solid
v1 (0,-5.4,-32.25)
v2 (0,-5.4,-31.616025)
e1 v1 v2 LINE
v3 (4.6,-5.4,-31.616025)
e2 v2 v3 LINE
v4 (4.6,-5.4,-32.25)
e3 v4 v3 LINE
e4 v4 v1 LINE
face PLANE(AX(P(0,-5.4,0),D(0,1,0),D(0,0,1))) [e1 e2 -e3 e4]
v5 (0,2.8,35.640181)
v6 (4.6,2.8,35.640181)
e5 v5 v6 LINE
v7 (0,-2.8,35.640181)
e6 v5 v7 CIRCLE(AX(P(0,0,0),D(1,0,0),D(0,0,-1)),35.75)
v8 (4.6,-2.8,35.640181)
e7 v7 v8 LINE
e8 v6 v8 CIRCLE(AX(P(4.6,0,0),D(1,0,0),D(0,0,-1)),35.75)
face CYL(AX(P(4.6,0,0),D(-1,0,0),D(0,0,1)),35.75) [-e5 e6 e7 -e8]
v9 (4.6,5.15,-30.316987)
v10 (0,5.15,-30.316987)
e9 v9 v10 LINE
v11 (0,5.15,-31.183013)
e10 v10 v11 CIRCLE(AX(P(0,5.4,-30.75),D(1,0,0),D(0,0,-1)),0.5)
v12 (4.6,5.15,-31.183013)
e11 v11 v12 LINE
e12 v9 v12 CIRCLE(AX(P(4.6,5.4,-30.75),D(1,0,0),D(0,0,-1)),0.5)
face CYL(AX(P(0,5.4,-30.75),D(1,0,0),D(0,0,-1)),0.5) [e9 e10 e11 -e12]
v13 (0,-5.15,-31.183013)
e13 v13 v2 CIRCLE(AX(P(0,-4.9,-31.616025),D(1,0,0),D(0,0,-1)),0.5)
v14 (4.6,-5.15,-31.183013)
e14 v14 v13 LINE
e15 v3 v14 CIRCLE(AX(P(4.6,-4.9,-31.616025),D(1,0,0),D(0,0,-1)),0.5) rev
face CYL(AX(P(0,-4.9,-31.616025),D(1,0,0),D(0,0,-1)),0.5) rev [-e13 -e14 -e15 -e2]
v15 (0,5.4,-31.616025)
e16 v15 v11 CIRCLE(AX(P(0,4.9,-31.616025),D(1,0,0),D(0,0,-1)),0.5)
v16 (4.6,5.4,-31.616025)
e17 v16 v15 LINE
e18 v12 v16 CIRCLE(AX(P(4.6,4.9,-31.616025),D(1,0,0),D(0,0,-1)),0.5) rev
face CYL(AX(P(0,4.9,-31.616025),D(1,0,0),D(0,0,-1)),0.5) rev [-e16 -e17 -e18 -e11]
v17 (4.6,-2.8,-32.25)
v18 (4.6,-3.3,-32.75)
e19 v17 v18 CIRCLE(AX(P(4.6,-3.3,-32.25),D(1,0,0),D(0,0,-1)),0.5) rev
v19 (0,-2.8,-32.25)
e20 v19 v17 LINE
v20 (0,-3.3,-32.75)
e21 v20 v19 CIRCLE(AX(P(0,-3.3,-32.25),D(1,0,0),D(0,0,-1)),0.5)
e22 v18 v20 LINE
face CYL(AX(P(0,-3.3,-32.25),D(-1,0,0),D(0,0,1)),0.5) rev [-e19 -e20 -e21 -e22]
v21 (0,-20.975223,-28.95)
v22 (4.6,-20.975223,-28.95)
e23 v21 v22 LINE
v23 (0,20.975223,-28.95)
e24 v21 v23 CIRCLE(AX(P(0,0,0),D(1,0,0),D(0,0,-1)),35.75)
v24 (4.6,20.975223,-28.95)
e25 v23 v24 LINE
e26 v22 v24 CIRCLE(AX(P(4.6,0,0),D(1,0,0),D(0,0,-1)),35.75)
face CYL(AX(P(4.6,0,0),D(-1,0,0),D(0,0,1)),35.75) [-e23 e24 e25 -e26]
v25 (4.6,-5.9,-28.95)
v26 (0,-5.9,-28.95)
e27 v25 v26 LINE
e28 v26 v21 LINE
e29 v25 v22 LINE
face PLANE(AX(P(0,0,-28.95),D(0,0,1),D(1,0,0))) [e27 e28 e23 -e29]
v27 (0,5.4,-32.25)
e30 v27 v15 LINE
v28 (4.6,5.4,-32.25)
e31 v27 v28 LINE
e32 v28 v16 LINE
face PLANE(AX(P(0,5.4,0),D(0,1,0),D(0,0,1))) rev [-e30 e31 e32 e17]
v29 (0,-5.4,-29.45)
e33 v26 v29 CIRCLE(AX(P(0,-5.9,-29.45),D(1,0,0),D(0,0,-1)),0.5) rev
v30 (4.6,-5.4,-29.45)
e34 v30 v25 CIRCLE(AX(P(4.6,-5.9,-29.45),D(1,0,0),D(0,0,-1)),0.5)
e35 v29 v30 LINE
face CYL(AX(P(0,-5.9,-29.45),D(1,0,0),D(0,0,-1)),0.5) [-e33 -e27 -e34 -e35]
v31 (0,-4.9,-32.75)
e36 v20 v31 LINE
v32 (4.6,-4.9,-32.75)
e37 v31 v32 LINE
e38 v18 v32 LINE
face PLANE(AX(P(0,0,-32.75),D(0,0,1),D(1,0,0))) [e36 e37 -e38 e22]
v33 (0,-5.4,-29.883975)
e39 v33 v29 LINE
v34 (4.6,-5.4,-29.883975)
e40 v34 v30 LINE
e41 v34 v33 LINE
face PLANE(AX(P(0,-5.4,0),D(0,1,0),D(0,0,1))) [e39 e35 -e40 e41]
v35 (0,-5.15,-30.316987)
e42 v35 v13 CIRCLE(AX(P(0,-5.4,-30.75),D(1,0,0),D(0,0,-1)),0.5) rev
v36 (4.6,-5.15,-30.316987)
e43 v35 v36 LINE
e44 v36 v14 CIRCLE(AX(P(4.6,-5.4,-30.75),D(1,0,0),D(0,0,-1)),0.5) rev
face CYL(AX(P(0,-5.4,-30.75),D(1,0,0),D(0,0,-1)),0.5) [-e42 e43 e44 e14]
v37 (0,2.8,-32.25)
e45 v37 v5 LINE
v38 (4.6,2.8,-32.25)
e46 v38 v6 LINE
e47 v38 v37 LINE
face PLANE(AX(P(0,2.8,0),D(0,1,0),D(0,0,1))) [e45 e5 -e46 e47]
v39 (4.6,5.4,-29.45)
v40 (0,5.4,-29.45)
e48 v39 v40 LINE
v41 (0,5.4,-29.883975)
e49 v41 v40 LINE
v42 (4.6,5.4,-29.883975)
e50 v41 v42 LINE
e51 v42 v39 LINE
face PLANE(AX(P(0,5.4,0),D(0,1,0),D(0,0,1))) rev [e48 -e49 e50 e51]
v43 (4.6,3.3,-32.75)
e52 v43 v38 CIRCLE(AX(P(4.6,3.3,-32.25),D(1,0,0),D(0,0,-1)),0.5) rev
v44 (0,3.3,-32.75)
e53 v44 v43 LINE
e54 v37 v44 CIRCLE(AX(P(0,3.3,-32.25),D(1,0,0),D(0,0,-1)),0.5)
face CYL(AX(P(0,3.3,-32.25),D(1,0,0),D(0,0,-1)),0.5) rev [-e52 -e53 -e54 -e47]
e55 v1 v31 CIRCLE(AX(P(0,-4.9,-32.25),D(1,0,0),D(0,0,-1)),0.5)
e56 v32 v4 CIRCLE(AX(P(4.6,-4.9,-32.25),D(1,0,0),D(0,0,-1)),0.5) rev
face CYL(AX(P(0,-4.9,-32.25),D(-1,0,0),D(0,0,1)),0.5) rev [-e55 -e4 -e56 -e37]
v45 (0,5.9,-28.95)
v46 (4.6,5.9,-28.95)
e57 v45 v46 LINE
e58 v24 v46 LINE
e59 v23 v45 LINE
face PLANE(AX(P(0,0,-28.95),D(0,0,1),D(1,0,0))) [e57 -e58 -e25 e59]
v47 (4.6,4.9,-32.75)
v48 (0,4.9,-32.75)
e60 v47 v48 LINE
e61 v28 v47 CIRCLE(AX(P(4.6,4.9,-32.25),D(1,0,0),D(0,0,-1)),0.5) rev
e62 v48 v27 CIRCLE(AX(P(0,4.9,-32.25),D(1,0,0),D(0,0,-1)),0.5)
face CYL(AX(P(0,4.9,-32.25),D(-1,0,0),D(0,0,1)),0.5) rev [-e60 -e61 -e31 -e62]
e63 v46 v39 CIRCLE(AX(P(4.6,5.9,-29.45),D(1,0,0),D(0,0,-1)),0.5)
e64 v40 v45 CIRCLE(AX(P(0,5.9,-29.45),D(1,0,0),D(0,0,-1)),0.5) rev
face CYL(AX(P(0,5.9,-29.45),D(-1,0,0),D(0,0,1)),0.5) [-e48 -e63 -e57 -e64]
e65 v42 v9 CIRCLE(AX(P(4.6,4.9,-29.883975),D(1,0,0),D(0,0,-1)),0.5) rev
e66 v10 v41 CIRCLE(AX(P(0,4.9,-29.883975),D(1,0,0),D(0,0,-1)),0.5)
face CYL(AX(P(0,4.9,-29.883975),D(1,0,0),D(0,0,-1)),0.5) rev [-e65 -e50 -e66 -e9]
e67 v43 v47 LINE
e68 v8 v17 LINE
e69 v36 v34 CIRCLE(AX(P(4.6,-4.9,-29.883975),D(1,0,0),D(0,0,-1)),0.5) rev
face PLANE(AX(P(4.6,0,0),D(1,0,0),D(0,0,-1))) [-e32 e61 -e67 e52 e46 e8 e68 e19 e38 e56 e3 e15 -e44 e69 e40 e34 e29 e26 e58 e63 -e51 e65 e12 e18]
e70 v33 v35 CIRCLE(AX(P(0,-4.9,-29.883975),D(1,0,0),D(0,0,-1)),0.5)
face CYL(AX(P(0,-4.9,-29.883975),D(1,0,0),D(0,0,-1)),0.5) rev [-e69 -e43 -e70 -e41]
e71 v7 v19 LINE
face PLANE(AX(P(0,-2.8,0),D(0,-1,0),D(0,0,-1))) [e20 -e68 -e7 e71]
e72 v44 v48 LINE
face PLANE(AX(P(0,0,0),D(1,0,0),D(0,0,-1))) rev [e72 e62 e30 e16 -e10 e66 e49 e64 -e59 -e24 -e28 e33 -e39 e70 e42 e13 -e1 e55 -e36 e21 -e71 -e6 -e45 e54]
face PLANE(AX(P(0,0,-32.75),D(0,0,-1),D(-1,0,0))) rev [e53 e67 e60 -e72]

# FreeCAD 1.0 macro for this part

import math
import FreeCAD as App
import Part
import Sketcher
from FreeCAD import Vector
Q = App.Units.Quantity


def edges_at(feature, points):
    """Names of the edges that pass closest to the given points."""
    edges = feature.Shape.Edges
    near = lambda p: min(range(len(edges)), key=lambda i: edges[i].distToShape(Part.Vertex(*p))[0])
    return sorted({f"Edge{near(p) + 1}" for p in points})

doc = App.newDocument("Part")
body = doc.addObject("PartDesign::Body", "Body")

# Sketch on YZ plane
sketch1 = body.newObject("Sketcher::SketchObject", "Sketch")
sketch1.AttachmentSupport = (doc.getObject("YZ_Plane"), [""])
sketch1.MapMode = "FlatFace"
sketch1.addGeometry(Part.Circle(Vector(0, 0, 0), Vector(0, 0, 1), 36), False)
sketch1.addConstraint([
    Sketcher.Constraint("Coincident", 0, 3, -1, 1),
    Sketcher.Constraint("Diameter", 0, Q("71.5 mm")),
])
pad1 = body.newObject("PartDesign::Pad", "Pad")
pad1.Profile = sketch1
pad1.Length = 4.6

# Sketch on YZ plane
sketch2 = body.newObject("Sketcher::SketchObject", "Sketch001")
sketch2.AttachmentSupport = (doc.getObject("YZ_Plane"), [""])
sketch2.MapMode = "FlatFace"
sketch2.AttachmentOffset = App.Placement(Vector(0, 0, 4.6), App.Rotation())
sketch2.addGeometry([
    Part.ArcOfCircle(Part.Circle(Vector(0, 0, 0), Vector(0, 0, 1), 35.8), math.radians(-54), math.radians(86)),  # 0
    Part.LineSegment(Vector(2.8, 35.6, 0), Vector(2.8, -32.8, 0)),  # 1
    Part.LineSegment(Vector(2.8, -32.8, 0), Vector(5.4, -32.8, 0)),  # 2
    Part.LineSegment(Vector(5.4, -32.8, 0), Vector(5.4, -31.2, 0)),  # 3
    Part.ArcOfCircle(Part.Circle(Vector(5.4, -30.8, 0), Vector(0, 0, 1), 0.5), math.radians(90), math.radians(270)),  # 4
    Part.LineSegment(Vector(5.4, -30.2, 0), Vector(5.4, -28.9, 0)),  # 5
    Part.LineSegment(Vector(5.4, -28.9, 0), Vector(21, -28.9, 0)),  # 6
    Part.ArcOfCircle(Part.Circle(Vector(0, 0, 0), Vector(0, 0, 1), 35.8), math.radians(94), math.radians(234)),  # 7
    Part.LineSegment(Vector(-21, -28.9, 0), Vector(-5.4, -28.9, 0)),  # 8
    Part.LineSegment(Vector(-5.4, -28.9, 0), Vector(-5.4, -30.2, 0)),  # 9
    Part.ArcOfCircle(Part.Circle(Vector(-5.4, -30.8, 0), Vector(0, 0, 1), 0.5), math.radians(-90), math.radians(90)),  # 10
    Part.LineSegment(Vector(-5.4, -31.2, 0), Vector(-5.4, -32.8, 0)),  # 11
    Part.LineSegment(Vector(-5.4, -32.8, 0), Vector(-2.8, -32.8, 0)),  # 12
    Part.LineSegment(Vector(-2.8, -32.8, 0), Vector(-2.8, 35.6, 0)),  # 13
], False)
sketch2.addConstraint([
    Sketcher.Constraint("Coincident", 0, 2, 1, 1),
    Sketcher.Constraint("Coincident", 1, 2, 2, 1),
    Sketcher.Constraint("Coincident", 2, 2, 3, 1),
    Sketcher.Constraint("Coincident", 3, 2, 4, 2),
    Sketcher.Constraint("Coincident", 4, 1, 5, 1),
    Sketcher.Constraint("Coincident", 5, 2, 6, 1),
    Sketcher.Constraint("Coincident", 6, 2, 0, 1),
    Sketcher.Constraint("Coincident", 7, 2, 8, 1),
    Sketcher.Constraint("Coincident", 8, 2, 9, 1),
    Sketcher.Constraint("Coincident", 9, 2, 10, 2),
    Sketcher.Constraint("Coincident", 10, 1, 11, 1),
    Sketcher.Constraint("Coincident", 11, 2, 12, 1),
    Sketcher.Constraint("Coincident", 12, 2, 13, 1),
    Sketcher.Constraint("Coincident", 13, 2, 7, 1),
    Sketcher.Constraint("Vertical", 1),
    Sketcher.Constraint("Horizontal", 2),
    Sketcher.Constraint("Vertical", 3),
    Sketcher.Constraint("Vertical", 5),
    Sketcher.Constraint("Horizontal", 6),
    Sketcher.Constraint("Horizontal", 8),
    Sketcher.Constraint("Vertical", 9),
    Sketcher.Constraint("Vertical", 11),
    Sketcher.Constraint("Horizontal", 12),
    Sketcher.Constraint("Vertical", 13),
    Sketcher.Constraint("Coincident", 0, 3, -1, 1),
    Sketcher.Constraint("Coincident", 7, 3, -1, 1),
    Sketcher.Constraint("Equal", 0, 7),
    Sketcher.Constraint("Equal", 4, 10),
    Sketcher.Constraint("Symmetric", 4, 3, 10, 3, -2),
    Sketcher.Constraint("Symmetric", 5, 2, 8, 2, -2),
    Sketcher.Constraint("Symmetric", 2, 2, 11, 2, -2),
    Sketcher.Constraint("Horizontal", 0, 2, 13, 2),
    Sketcher.Constraint("Vertical", 4, 3, 2, 2),
    Sketcher.Constraint("Vertical", 3, 2, 4, 1),
    Sketcher.Constraint("Radius", 4, Q("0.5 mm")),
    Sketcher.Constraint("Radius", 0, Q("35.75 mm")),
    Sketcher.Constraint("DistanceX", 2, 1, 2, 2, Q("2.6 mm")),
    Sketcher.Constraint("DistanceY", 3, 1, 3, 2, Q("1.5 mm")),
    Sketcher.Constraint("DistanceY", 5, 1, 5, 2, Q("1.3 mm")),
    Sketcher.Constraint("DistanceX", -1, 1, 4, 3, Q("5.4 mm")),
    Sketcher.Constraint("DistanceY", 4, 3, -1, 1, Q("30.75 mm")),
])
pocket1 = body.newObject("PartDesign::Pocket", "Pocket")
pocket1.Profile = sketch2
pocket1.Type = "ThroughAll"
doc.recompute()

fillet = body.newObject("PartDesign::Fillet", "Fillet")
fillet.Base = (pocket1, edges_at(pocket1, [
    (2.3, 5.4, -28.95),
    (2.3, 5.4, -32.75),
    (2.3, 2.8, -32.75),
    (2.3, -5.4, -28.95),
    (2.3, -2.8, -32.75),
    (2.3, -5.4, -32.75),
]))
fillet.Radius = 0.5
doc.recompute()

fillet2 = body.newObject("PartDesign::Fillet", "Fillet001")
fillet2.Base = (fillet, edges_at(fillet, [
    (2.3, 5.4, -30.25),
    (2.3, 5.4, -31.25),
    (2.3, -5.4, -31.25),
    (2.3, -5.4, -30.25),
]))
fillet2.Radius = 0.5

doc.recompute()
